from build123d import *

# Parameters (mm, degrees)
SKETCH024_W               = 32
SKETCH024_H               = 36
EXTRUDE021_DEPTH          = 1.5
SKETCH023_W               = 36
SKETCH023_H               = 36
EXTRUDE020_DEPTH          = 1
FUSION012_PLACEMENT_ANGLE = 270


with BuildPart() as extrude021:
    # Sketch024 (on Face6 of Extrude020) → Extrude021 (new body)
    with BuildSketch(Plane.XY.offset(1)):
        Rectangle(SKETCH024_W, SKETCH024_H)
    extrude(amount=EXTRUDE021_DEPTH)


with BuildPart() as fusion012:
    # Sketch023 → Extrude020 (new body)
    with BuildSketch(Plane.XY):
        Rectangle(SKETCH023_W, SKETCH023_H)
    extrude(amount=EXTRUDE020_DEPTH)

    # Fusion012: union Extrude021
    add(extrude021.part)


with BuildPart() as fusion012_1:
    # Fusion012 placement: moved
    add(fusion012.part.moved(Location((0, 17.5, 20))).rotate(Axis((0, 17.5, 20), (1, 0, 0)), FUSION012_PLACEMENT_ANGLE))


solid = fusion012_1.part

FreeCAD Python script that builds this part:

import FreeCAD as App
import Part
import Sketcher

V = App.Vector
Q = App.Units.Quantity


def add_polygon(sketch, points):
    """Adds a closed chain of lines whose ends are joined by coincident constraints."""
    first, n = sketch.GeometryCount, len(points)
    for a, b in zip(points, points[1:] + points[:1]):
        sketch.addGeometry(Part.LineSegment(App.Vector(*a, 0), App.Vector(*b, 0)), False)
    for i in range(n):
        sketch.addConstraint(Sketcher.Constraint("Coincident", first + i, 2, first + (i + 1) % n, 1))

doc = App.newDocument("Part")
body = doc.addObject("PartDesign::Body", "Body")

sketch1 = body.newObject("Sketcher::SketchObject", "Sketch")
sketch1.AttachmentSupport = (doc.getObject("XY_Plane"), [""])
sketch1.MapMode = "FlatFace"
sketch1.AttachmentOffset = App.Placement(V(0, 0, 1), App.Rotation())
add_polygon(sketch1, [(-16, 18), (-16, -18), (16, -18), (16, 18)])
sketch1.addConstraint(Sketcher.Constraint("Vertical", 0))
sketch1.addConstraint(Sketcher.Constraint("Horizontal", 1))
sketch1.addConstraint(Sketcher.Constraint("Vertical", 2))
sketch1.addConstraint(Sketcher.Constraint("Horizontal", 3))
sketch1.addConstraint(Sketcher.Constraint("Symmetric", 0, 2, 2, 2, -1, 1))
sketch1.addConstraint(Sketcher.Constraint("DistanceX", 1, 1, 1, 2, Q("32 mm")))
sketch1.addConstraint(Sketcher.Constraint("DistanceY", 0, 2, 0, 1, Q("36 mm")))
pad1 = body.newObject("PartDesign::Pad", "Pad")
pad1.Profile = sketch1
pad1.Length = 1.5
body2 = doc.addObject("PartDesign::Body", "Body001")

sketch2 = body2.newObject("Sketcher::SketchObject", "Sketch001")
sketch2.AttachmentSupport = (doc.getObject("XY_Plane001"), [""])
sketch2.MapMode = "FlatFace"
add_polygon(sketch2, [(-18, 18), (-18, -18), (18, -18), (18, 18)])
sketch2.addConstraint(Sketcher.Constraint("Vertical", 0))
sketch2.addConstraint(Sketcher.Constraint("Horizontal", 1))
sketch2.addConstraint(Sketcher.Constraint("Vertical", 2))
sketch2.addConstraint(Sketcher.Constraint("Horizontal", 3))
sketch2.addConstraint(Sketcher.Constraint("Symmetric", 0, 2, 2, 2, -1, 1))
sketch2.addConstraint(Sketcher.Constraint("Equal", 3, 0))
sketch2.addConstraint(Sketcher.Constraint("DistanceX", 1, 1, 1, 2, Q("36 mm")))
pad2 = body2.newObject("PartDesign::Pad", "Pad001")
pad2.Profile = sketch2
pad2.Length = 1
doc.recompute()

boolean = body2.newObject("PartDesign::Boolean", "Boolean")
boolean.Type = "Fuse"
boolean.addObjects([body])
body3 = doc.addObject("PartDesign::Body", "Body002")
doc.recompute()

body2.Placement = App.Placement(V(0, 17.5, 20), App.Rotation(V(1, 0, 0), 270))
boolean2 = body3.newObject("PartDesign::Boolean", "Boolean001")
boolean2.Type = "Fuse"
boolean2.addObjects([body2])

doc.recompute()
